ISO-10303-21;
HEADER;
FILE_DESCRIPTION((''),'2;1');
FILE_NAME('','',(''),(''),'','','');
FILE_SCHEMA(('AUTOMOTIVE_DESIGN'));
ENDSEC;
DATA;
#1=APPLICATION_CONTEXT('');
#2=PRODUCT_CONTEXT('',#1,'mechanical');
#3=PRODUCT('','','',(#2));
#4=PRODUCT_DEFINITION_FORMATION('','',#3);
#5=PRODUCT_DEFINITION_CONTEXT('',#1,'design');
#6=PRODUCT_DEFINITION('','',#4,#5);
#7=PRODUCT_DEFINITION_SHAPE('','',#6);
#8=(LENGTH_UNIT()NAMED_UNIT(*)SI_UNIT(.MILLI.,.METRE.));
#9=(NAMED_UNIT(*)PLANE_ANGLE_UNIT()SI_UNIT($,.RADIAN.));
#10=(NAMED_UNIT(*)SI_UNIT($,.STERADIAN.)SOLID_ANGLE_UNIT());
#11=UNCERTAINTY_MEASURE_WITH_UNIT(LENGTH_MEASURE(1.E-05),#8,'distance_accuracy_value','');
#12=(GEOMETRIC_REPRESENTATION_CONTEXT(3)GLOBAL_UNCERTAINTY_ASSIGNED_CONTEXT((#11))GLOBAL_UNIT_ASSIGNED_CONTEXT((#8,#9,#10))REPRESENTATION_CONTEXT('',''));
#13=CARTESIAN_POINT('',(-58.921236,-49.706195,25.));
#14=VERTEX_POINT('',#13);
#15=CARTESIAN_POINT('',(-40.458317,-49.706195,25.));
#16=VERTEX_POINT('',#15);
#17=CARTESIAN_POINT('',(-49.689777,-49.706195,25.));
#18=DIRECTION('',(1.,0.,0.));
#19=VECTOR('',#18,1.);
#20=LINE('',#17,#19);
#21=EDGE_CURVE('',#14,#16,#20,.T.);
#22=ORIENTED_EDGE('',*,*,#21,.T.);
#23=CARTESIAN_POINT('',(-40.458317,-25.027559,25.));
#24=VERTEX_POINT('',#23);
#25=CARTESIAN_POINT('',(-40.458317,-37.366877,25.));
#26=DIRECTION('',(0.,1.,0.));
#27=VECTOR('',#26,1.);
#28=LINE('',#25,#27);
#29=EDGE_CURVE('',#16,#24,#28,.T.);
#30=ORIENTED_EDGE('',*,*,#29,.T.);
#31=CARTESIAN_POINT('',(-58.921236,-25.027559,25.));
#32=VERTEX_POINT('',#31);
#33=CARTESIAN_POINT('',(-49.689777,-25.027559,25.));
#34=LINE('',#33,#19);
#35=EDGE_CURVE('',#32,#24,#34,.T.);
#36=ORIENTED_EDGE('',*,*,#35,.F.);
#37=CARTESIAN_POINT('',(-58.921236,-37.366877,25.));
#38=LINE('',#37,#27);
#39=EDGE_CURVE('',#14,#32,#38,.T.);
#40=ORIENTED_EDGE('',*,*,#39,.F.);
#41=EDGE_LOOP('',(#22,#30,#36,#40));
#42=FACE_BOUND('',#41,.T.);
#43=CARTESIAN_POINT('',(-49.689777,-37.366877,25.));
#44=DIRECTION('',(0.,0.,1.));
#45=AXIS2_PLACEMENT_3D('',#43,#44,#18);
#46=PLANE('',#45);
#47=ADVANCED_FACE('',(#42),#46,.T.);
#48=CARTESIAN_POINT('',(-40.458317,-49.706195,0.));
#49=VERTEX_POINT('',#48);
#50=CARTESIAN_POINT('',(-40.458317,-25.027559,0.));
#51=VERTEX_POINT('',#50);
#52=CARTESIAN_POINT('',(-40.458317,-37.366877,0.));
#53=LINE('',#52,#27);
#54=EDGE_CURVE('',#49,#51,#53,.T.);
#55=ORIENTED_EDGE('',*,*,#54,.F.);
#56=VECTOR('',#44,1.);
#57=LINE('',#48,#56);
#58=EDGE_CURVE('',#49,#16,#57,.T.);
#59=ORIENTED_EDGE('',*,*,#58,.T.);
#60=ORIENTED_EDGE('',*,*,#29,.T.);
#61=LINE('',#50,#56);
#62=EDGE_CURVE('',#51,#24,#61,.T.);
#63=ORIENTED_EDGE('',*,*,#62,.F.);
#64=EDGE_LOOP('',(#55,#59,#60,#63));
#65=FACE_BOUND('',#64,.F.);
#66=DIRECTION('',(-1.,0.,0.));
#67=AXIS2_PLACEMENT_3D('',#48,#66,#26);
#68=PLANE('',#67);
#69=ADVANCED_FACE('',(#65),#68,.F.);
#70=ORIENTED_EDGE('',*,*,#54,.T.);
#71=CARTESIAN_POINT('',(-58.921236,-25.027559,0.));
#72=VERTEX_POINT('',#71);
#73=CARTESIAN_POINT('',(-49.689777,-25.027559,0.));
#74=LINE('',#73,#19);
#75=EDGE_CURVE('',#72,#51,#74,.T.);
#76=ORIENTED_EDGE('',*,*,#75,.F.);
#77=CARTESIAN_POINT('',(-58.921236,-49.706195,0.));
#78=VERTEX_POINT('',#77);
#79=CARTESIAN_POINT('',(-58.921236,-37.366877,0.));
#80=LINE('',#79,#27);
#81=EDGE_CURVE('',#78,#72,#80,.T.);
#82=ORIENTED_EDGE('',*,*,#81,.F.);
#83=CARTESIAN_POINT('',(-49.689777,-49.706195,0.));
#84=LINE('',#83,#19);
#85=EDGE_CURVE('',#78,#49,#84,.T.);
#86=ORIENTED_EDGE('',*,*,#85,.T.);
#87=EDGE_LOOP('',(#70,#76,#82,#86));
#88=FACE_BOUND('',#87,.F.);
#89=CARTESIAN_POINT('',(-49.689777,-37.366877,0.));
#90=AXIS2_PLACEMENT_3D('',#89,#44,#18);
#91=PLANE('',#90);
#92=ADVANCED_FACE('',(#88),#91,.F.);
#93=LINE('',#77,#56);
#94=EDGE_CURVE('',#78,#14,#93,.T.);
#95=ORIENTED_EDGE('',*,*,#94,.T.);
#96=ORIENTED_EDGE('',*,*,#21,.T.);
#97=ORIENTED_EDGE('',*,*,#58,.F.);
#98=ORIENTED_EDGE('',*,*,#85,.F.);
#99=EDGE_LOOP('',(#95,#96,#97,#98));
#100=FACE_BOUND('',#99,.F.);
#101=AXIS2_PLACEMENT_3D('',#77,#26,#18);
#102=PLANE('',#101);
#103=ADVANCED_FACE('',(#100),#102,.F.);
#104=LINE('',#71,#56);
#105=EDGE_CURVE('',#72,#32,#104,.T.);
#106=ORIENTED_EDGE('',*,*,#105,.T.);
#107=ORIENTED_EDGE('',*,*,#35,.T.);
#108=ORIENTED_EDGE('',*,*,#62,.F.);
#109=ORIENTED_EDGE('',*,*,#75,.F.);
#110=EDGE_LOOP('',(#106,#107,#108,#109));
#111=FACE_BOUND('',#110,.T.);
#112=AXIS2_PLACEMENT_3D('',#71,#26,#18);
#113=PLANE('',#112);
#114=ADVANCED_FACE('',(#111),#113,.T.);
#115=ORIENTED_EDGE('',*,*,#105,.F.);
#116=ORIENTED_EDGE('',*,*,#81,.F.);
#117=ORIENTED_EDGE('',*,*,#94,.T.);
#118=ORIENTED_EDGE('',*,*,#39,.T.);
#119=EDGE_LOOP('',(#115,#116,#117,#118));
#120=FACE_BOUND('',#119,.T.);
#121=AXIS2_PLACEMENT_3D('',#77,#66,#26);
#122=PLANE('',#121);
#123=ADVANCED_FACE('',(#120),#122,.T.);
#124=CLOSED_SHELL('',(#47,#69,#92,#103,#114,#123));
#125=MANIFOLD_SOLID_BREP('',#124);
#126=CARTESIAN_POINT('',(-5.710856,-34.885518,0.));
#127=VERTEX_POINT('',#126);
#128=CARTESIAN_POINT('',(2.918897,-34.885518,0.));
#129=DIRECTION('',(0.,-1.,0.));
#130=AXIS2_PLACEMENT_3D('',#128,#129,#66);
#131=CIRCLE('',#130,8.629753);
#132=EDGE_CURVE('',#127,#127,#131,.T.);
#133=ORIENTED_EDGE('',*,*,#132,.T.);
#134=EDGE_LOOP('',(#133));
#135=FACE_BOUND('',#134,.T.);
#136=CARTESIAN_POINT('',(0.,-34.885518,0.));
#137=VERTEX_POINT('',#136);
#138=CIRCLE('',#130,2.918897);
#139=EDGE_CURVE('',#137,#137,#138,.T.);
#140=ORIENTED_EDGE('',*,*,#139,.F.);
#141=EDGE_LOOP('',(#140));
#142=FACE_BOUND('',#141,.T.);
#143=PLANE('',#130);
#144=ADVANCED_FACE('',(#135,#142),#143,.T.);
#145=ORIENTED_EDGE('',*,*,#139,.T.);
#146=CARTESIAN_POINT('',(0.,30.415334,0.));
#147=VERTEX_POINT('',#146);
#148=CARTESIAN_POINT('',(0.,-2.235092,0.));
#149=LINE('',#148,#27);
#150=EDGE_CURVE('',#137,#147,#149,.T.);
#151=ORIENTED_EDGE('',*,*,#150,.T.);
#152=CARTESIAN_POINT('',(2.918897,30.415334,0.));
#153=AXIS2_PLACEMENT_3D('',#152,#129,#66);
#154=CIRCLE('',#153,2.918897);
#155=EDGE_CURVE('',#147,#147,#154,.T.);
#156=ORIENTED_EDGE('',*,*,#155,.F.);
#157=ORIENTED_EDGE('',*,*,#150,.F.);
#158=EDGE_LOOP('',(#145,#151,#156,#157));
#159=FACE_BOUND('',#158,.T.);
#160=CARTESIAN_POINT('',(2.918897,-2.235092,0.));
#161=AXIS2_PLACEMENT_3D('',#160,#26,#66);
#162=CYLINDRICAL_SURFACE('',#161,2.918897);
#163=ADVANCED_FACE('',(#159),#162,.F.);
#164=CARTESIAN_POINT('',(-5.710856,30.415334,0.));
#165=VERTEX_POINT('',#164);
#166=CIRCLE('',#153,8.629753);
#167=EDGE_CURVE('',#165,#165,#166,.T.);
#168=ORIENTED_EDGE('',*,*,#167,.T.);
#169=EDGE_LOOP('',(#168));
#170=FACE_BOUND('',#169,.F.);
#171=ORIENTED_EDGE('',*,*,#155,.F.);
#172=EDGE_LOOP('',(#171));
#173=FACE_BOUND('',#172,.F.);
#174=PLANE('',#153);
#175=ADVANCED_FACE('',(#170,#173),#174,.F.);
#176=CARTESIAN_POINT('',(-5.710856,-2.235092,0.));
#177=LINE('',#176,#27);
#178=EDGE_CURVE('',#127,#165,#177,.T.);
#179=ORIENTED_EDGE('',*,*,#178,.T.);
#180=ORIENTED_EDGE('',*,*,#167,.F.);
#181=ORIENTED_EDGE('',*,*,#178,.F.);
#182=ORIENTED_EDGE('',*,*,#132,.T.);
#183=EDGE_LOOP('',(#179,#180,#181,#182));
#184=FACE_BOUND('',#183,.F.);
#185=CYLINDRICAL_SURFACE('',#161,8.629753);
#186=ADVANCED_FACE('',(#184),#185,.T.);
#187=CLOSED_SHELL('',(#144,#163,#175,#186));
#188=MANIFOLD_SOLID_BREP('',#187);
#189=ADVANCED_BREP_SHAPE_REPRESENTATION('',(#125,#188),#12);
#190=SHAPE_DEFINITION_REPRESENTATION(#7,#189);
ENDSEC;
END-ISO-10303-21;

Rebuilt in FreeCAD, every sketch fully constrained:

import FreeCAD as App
import Part
import Sketcher

V = App.Vector

doc = App.newDocument("Part")
body = doc.addObject("PartDesign::Body", "Body")

# Sketch on XY plane
sketch1 = body.newObject("Sketcher::SketchObject", "Sketch")
sketch1.AttachmentSupport = (doc.getObject("XY_Plane"), [""])
sketch1.MapMode = "FlatFace"
sketch1.addGeometry(Part.LineSegment(V(-58.921236, -25.027559, 0), V(-58.921236, -49.706195, 0)), False)
sketch1.addGeometry(Part.LineSegment(V(-58.921236, -49.706195, 0), V(-40.458317, -49.706195, 0)), False)
sketch1.addGeometry(Part.LineSegment(V(-40.458317, -49.706195, 0), V(-40.458317, -25.027559, 0)), False)
sketch1.addGeometry(Part.LineSegment(V(-40.458317, -25.027559, 0), V(-58.921236, -25.027559, 0)), False)
sketch1.addConstraint(Sketcher.Constraint("Coincident", 0, 2, 1, 1))
sketch1.addConstraint(Sketcher.Constraint("Coincident", 1, 2, 2, 1))
sketch1.addConstraint(Sketcher.Constraint("Coincident", 2, 2, 3, 1))
sketch1.addConstraint(Sketcher.Constraint("Coincident", 3, 2, 0, 1))
sketch1.addConstraint(Sketcher.Constraint("Vertical", 0))
sketch1.addConstraint(Sketcher.Constraint("Horizontal", 1))
sketch1.addConstraint(Sketcher.Constraint("Vertical", 2))
sketch1.addConstraint(Sketcher.Constraint("Horizontal", 3))
sketch1.addConstraint(Sketcher.Constraint("DistanceX", 1, 1, 1, 2, 18.462919))
sketch1.addConstraint(Sketcher.Constraint("DistanceY", 0, 2, 0, 1, 24.678637))
sketch1.addConstraint(Sketcher.Constraint("DistanceY", 2, 2, -1, 1, 25.027559))
sketch1.addConstraint(Sketcher.Constraint("DistanceX", 0, 2, -1, 1, 58.921236))
pad1 = body.newObject("PartDesign::Pad", "Pad")
pad1.Profile = sketch1
pad1.Length = 25
body2 = doc.addObject("PartDesign::Body", "Body001")

# Sketch on XY plane
sketch2 = body2.newObject("Sketcher::SketchObject", "Sketch001")
sketch2.AttachmentSupport = (doc.getObject("XY_Plane001"), [""])
sketch2.MapMode = "FlatFace"
sketch2.addGeometry(Part.LineSegment(V(-5.710856, 30.415334, 0), V(-5.710856, -34.885518, 0)), False)
sketch2.addGeometry(Part.LineSegment(V(-5.710856, -34.885518, 0), V(0, -34.885518, 0)), False)
sketch2.addGeometry(Part.LineSegment(V(0, -34.885518, 0), V(0, 30.415334, 0)), False)
sketch2.addGeometry(Part.LineSegment(V(0, 30.415334, 0), V(-5.710856, 30.415334, 0)), False)
sketch2.addGeometry(Part.LineSegment(V(2.918897, 30.415334, 0), V(2.918897, -34.885518, 0)), True)  # axis
sketch2.addConstraint(Sketcher.Constraint("Coincident", 0, 2, 1, 1))
sketch2.addConstraint(Sketcher.Constraint("Coincident", 1, 2, 2, 1))
sketch2.addConstraint(Sketcher.Constraint("Coincident", 2, 2, 3, 1))
sketch2.addConstraint(Sketcher.Constraint("Coincident", 3, 2, 0, 1))
sketch2.addConstraint(Sketcher.Constraint("Vertical", 0))
sketch2.addConstraint(Sketcher.Constraint("Horizontal", 1))
sketch2.addConstraint(Sketcher.Constraint("Vertical", 2))
sketch2.addConstraint(Sketcher.Constraint("Horizontal", 3))
sketch2.addConstraint(Sketcher.Constraint("Vertical", 4))
sketch2.addConstraint(Sketcher.Constraint("PointOnObject", 1, 2, -2))
sketch2.addConstraint(Sketcher.Constraint("Horizontal", 3, 2, 4, 1))
sketch2.addConstraint(Sketcher.Constraint("Horizontal", 1, 2, 4, 2))
sketch2.addConstraint(Sketcher.Constraint("DistanceY", 0, 2, 0, 1, 65.300852))
sketch2.addConstraint(Sketcher.Constraint("DistanceX", 1, 1, 1, 2, 5.710856))
sketch2.addConstraint(Sketcher.Constraint("DistanceY", 0, 2, -1, 1, 34.885518))
sketch2.addConstraint(Sketcher.Constraint("DistanceX", -1, 1, 4, 1, 2.918897))
revolution = body2.newObject("PartDesign::Revolution", "Revolution")
revolution.Profile = sketch2
revolution.ReferenceAxis = (sketch2, ["Axis0"])
revolution.Angle = 360

doc.recompute()
